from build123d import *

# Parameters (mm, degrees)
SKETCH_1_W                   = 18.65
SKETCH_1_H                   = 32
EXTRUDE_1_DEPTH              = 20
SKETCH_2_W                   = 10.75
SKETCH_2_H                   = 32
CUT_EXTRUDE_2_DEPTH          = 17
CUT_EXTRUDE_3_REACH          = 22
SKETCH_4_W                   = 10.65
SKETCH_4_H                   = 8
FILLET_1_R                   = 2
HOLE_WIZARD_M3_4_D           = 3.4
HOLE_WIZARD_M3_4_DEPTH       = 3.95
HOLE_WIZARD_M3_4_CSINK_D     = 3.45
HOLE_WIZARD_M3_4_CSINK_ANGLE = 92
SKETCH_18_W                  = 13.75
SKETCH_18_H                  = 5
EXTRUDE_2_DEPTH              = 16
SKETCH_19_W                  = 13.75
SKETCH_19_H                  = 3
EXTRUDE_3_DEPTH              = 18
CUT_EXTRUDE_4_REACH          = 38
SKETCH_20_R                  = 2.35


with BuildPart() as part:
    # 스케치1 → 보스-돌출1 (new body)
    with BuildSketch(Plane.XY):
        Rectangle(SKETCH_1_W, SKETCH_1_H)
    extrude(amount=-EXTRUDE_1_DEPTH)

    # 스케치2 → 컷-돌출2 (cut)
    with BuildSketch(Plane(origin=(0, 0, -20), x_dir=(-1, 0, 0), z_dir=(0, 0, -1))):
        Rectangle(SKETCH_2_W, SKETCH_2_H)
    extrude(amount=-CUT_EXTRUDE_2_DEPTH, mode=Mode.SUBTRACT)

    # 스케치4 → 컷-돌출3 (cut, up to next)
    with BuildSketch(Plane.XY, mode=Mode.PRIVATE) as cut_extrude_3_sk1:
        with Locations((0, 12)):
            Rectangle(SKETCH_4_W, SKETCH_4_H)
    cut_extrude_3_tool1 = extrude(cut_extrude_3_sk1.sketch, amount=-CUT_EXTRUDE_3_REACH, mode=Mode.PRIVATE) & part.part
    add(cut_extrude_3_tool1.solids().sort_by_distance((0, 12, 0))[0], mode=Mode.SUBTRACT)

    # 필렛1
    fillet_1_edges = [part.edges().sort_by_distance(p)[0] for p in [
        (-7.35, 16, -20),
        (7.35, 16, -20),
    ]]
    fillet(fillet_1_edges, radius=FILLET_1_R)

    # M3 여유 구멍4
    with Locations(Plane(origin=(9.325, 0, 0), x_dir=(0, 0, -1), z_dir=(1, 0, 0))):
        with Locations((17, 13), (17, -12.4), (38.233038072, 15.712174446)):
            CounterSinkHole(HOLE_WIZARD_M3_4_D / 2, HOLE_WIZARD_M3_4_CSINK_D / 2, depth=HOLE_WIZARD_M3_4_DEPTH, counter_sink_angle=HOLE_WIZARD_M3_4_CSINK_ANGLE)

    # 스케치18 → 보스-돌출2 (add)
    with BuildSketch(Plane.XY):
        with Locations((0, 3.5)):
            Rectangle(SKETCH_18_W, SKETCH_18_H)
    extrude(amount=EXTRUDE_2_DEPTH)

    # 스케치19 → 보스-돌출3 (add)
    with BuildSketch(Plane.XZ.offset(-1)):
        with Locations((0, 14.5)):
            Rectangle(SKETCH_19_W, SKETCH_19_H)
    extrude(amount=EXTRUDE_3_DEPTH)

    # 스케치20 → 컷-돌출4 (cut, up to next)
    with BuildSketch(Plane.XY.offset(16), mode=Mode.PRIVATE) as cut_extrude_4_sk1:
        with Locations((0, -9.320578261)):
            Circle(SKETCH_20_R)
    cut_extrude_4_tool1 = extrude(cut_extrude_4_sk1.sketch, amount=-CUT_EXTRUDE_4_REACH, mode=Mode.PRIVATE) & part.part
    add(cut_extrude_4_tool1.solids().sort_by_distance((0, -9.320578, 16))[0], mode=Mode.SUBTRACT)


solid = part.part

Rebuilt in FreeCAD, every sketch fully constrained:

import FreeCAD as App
import Part
import Sketcher
from FreeCAD import Vector
Q = App.Units.Quantity


def edges_at(feature, points):
    """Names of the edges that pass closest to the given points."""
    edges = feature.Shape.Edges
    near = lambda p: min(range(len(edges)), key=lambda i: edges[i].distToShape(Part.Vertex(*p))[0])
    return sorted({f"Edge{near(p) + 1}" for p in points})

doc = App.newDocument("Part")
params = doc.addObject("Spreadsheet::Sheet", "Params")
for row, (alias, value) in enumerate([
    ("sketch1_height", "32 mm"),
    ("sketch1_width", "18.65 mm"),
    ("pad1_length", "20 mm"),
    ("sketch2_height", "32 mm"),
    ("sketch2_width", "10.75 mm"),
    ("pocket1_length", "17 mm"),
    ("sketch3_height", "8 mm"),
    ("sketch3_width", "10.65 mm"),
    ("fillet_radius", "2 mm"),
    ("sketch4_diameter", "3.4 mm"),
    ("hole_diameter", "3.4 mm"),
    ("hole_depth", "3.95 mm"),
    ("hole_csink_diameter", "3.45 mm"),
    ("sketch5_height", "5 mm"),
    ("sketch5_width", "13.75 mm"),
    ("pad2_length", "16 mm"),
    ("sketch6_height", "3 mm"),
    ("sketch6_width", "13.75 mm"),
    ("pad3_length", "18 mm"),
    ("sketch7_diameter", "4.7 mm"),
], start=1):
    params.set(f"A{row}", alias)
    params.set(f"B{row}", "=" + value)
    params.setAlias(f"B{row}", alias)

body = doc.addObject("PartDesign::Body", "Body")

sketch1 = body.newObject("Sketcher::SketchObject", "Sketch")
sketch1.AttachmentSupport = (doc.getObject("XY_Plane"), [""])
sketch1.MapMode = "FlatFace"
sketch1.addGeometry([
    Part.LineSegment(Vector(-9, 16, 0), Vector(-9, -16, 0)),
    Part.LineSegment(Vector(-9, -16, 0), Vector(9, -16, 0)),
    Part.LineSegment(Vector(9, -16, 0), Vector(9, 16, 0)),
    Part.LineSegment(Vector(9, 16, 0), Vector(-9, 16, 0)),
], False)
sketch1.addConstraint([
    Sketcher.Constraint("Coincident", 0, 2, 1, 1),
    Sketcher.Constraint("Coincident", 1, 2, 2, 1),
    Sketcher.Constraint("Coincident", 2, 2, 3, 1),
    Sketcher.Constraint("Coincident", 3, 2, 0, 1),
    Sketcher.Constraint("Vertical", 0),
    Sketcher.Constraint("Horizontal", 1),
    Sketcher.Constraint("Vertical", 2),
    Sketcher.Constraint("Horizontal", 3),
    Sketcher.Constraint("Symmetric", 0, 2, 2, 2, -1, 1),
    Sketcher.Constraint("DistanceY", 0, 2, 0, 1, Q("32 mm")),
    Sketcher.Constraint("DistanceX", 1, 1, 1, 2, Q("18.65 mm")),
])
sketch1.setExpression("Constraints[9]", "Params.sketch1_height")
sketch1.setExpression("Constraints[10]", "Params.sketch1_width")
pad1 = body.newObject("PartDesign::Pad", "Pad")
pad1.Profile = sketch1
pad1.setExpression("Length", "Params.pad1_length")
pad1.Reversed = True

sketch2 = body.newObject("Sketcher::SketchObject", "Sketch001")
sketch2.AttachmentSupport = (doc.getObject("XY_Plane"), [""])
sketch2.MapMode = "FlatFace"
sketch2.AttachmentOffset = App.Placement(Vector(0, 0, -20), App.Rotation())
sketch2.addGeometry([
    Part.LineSegment(Vector(5, 16, 0), Vector(5, -16, 0)),
    Part.LineSegment(Vector(5, -16, 0), Vector(-5, -16, 0)),
    Part.LineSegment(Vector(-5, -16, 0), Vector(-5, 16, 0)),
    Part.LineSegment(Vector(-5, 16, 0), Vector(5, 16, 0)),
], False)
sketch2.addConstraint([
    Sketcher.Constraint("Coincident", 0, 2, 1, 1),
    Sketcher.Constraint("Coincident", 1, 2, 2, 1),
    Sketcher.Constraint("Coincident", 2, 2, 3, 1),
    Sketcher.Constraint("Coincident", 3, 2, 0, 1),
    Sketcher.Constraint("Vertical", 0),
    Sketcher.Constraint("Horizontal", 1),
    Sketcher.Constraint("Vertical", 2),
    Sketcher.Constraint("Horizontal", 3),
    Sketcher.Constraint("Symmetric", 0, 2, 2, 2, -1, 1),
    Sketcher.Constraint("DistanceY", 0, 2, 0, 1, Q("32 mm")),
    Sketcher.Constraint("DistanceX", 1, 2, 1, 1, Q("10.75 mm")),
])
sketch2.setExpression("Constraints[9]", "Params.sketch2_height")
sketch2.setExpression("Constraints[10]", "Params.sketch2_width")
pocket1 = body.newObject("PartDesign::Pocket", "Pocket")
pocket1.Profile = sketch2
pocket1.setExpression("Length", "Params.pocket1_length")
pocket1.Reversed = True

sketch3 = body.newObject("Sketcher::SketchObject", "Sketch002")
sketch3.AttachmentSupport = (doc.getObject("XY_Plane"), [""])
sketch3.MapMode = "FlatFace"
sketch3.addGeometry([
    Part.LineSegment(Vector(-5, 16, 0), Vector(-5, 8, 0)),
    Part.LineSegment(Vector(-5, 8, 0), Vector(5, 8, 0)),
    Part.LineSegment(Vector(5, 8, 0), Vector(5, 16, 0)),
    Part.LineSegment(Vector(5, 16, 0), Vector(-5, 16, 0)),
], False)
sketch3.addConstraint([
    Sketcher.Constraint("Coincident", 0, 2, 1, 1),
    Sketcher.Constraint("Coincident", 1, 2, 2, 1),
    Sketcher.Constraint("Coincident", 2, 2, 3, 1),
    Sketcher.Constraint("Coincident", 3, 2, 0, 1),
    Sketcher.Constraint("Vertical", 0),
    Sketcher.Constraint("Horizontal", 1),
    Sketcher.Constraint("Vertical", 2),
    Sketcher.Constraint("Horizontal", 3),
    Sketcher.Constraint("DistanceY", 0, 2, 0, 1, Q("8 mm")),
    Sketcher.Constraint("DistanceY", -1, 1, 0, 2, Q("8 mm")),
    Sketcher.Constraint("DistanceX", 1, 1, 1, 2, Q("10.65 mm")),
    Sketcher.Constraint("DistanceX", 0, 2, -1, 1, Q("5.325 mm")),
])
sketch3.setExpression("Constraints[8]", "Params.sketch3_height")
sketch3.setExpression("Constraints[10]", "Params.sketch3_width")
pocket2 = body.newObject("PartDesign::Pocket", "Pocket001")
pocket2.Profile = sketch3
pocket2.Type = "UpToFirst"
doc.recompute()

fillet = body.newObject("PartDesign::Fillet", "Fillet")
fillet.Base = (pocket2, edges_at(pocket2, [(-7.35, 16, -20), (7.35, 16, -20)]))
fillet.setExpression("Radius", "Params.fillet_radius")

sketch4 = body.newObject("Sketcher::SketchObject", "Sketch003")
sketch4.AttachmentSupport = (doc.getObject("YZ_Plane"), [""])
sketch4.MapMode = "FlatFace"
sketch4.AttachmentOffset = App.Placement(Vector(0, 0, 9.325), App.Rotation())
sketch4.addGeometry([
    Part.Circle(Vector(13, -17, 0), Vector(0, 0, 1), 1.7),
    Part.Circle(Vector(-12.4, -17, 0), Vector(0, 0, 1), 1.7),
    Part.Circle(Vector(15.7, -38.2, 0), Vector(0, 0, 1), 1.7),
], False)
sketch4.addConstraint([
    Sketcher.Constraint("Equal", 0, 1),
    Sketcher.Constraint("Equal", 1, 2),
    Sketcher.Constraint("Horizontal", 0, 3, 1, 3),
    Sketcher.Constraint("Diameter", 0, Q("3.4 mm")),
    Sketcher.Constraint("DistanceX", -1, 1, 0, 3, Q("13 mm")),
    Sketcher.Constraint("DistanceY", 0, 3, -1, 1, Q("17 mm")),
    Sketcher.Constraint("DistanceX", 1, 3, -1, 1, Q("12.4 mm")),
    Sketcher.Constraint("DistanceY", 2, 3, -1, 1, Q("38.233038 mm")),
    Sketcher.Constraint("DistanceX", -1, 1, 2, 3, Q("15.712174 mm")),
])
sketch4.setExpression("Constraints[3]", "Params.sketch4_diameter")
doc.recompute()
hole = body.newObject("PartDesign::Hole", "Hole")
hole.Profile = sketch4
hole.ThreadType = "None"
hole.setExpression("Diameter", "Params.hole_diameter")
hole.DepthType = "Dimension"
hole.setExpression("Depth", "Params.hole_depth")
hole.DrillPoint = "Flat"
hole.HoleCutType = "Countersink"
hole.setExpression("HoleCutDiameter", "Params.hole_csink_diameter")
hole.HoleCutCountersinkAngle = 92

sketch5 = body.newObject("Sketcher::SketchObject", "Sketch004")
sketch5.AttachmentSupport = (doc.getObject("XY_Plane"), [""])
sketch5.MapMode = "FlatFace"
sketch5.addGeometry([
    Part.LineSegment(Vector(-7, 6, 0), Vector(-7, 1, 0)),
    Part.LineSegment(Vector(-7, 1, 0), Vector(7, 1, 0)),
    Part.LineSegment(Vector(7, 1, 0), Vector(7, 6, 0)),
    Part.LineSegment(Vector(7, 6, 0), Vector(-7, 6, 0)),
], False)
sketch5.addConstraint([
    Sketcher.Constraint("Coincident", 0, 2, 1, 1),
    Sketcher.Constraint("Coincident", 1, 2, 2, 1),
    Sketcher.Constraint("Coincident", 2, 2, 3, 1),
    Sketcher.Constraint("Coincident", 3, 2, 0, 1),
    Sketcher.Constraint("Vertical", 0),
    Sketcher.Constraint("Horizontal", 1),
    Sketcher.Constraint("Vertical", 2),
    Sketcher.Constraint("Horizontal", 3),
    Sketcher.Constraint("DistanceY", 0, 2, 0, 1, Q("5 mm")),
    Sketcher.Constraint("DistanceY", -1, 1, 0, 2, Q("1 mm")),
    Sketcher.Constraint("DistanceX", 1, 1, 1, 2, Q("13.75 mm")),
    Sketcher.Constraint("DistanceX", 0, 2, -1, 1, Q("6.875 mm")),
])
sketch5.setExpression("Constraints[8]", "Params.sketch5_height")
sketch5.setExpression("Constraints[10]", "Params.sketch5_width")
pad2 = body.newObject("PartDesign::Pad", "Pad001")
pad2.Profile = sketch5
pad2.setExpression("Length", "Params.pad2_length")

sketch6 = body.newObject("Sketcher::SketchObject", "Sketch005")
sketch6.AttachmentSupport = (doc.getObject("XZ_Plane"), [""])
sketch6.MapMode = "FlatFace"
sketch6.AttachmentOffset = App.Placement(Vector(0, 0, -1), App.Rotation())
sketch6.addGeometry([
    Part.LineSegment(Vector(-6.9, 16, 0), Vector(-6.9, 13, 0)),
    Part.LineSegment(Vector(-6.9, 13, 0), Vector(6.9, 13, 0)),
    Part.LineSegment(Vector(6.9, 13, 0), Vector(6.9, 16, 0)),
    Part.LineSegment(Vector(6.9, 16, 0), Vector(-6.9, 16, 0)),
], False)
sketch6.addConstraint([
    Sketcher.Constraint("Coincident", 0, 2, 1, 1),
    Sketcher.Constraint("Coincident", 1, 2, 2, 1),
    Sketcher.Constraint("Coincident", 2, 2, 3, 1),
    Sketcher.Constraint("Coincident", 3, 2, 0, 1),
    Sketcher.Constraint("Vertical", 0),
    Sketcher.Constraint("Horizontal", 1),
    Sketcher.Constraint("Vertical", 2),
    Sketcher.Constraint("Horizontal", 3),
    Sketcher.Constraint("DistanceY", 0, 2, 0, 1, Q("3 mm")),
    Sketcher.Constraint("DistanceY", -1, 1, 0, 2, Q("13 mm")),
    Sketcher.Constraint("DistanceX", 1, 1, 1, 2, Q("13.75 mm")),
    Sketcher.Constraint("DistanceX", 0, 2, -1, 1, Q("6.875 mm")),
])
sketch6.setExpression("Constraints[8]", "Params.sketch6_height")
sketch6.setExpression("Constraints[10]", "Params.sketch6_width")
pad3 = body.newObject("PartDesign::Pad", "Pad002")
pad3.Profile = sketch6
pad3.setExpression("Length", "Params.pad3_length")

sketch7 = body.newObject("Sketcher::SketchObject", "Sketch006")
sketch7.AttachmentSupport = (doc.getObject("XY_Plane"), [""])
sketch7.MapMode = "FlatFace"
sketch7.AttachmentOffset = App.Placement(Vector(0, 0, 16), App.Rotation())
sketch7.addGeometry(Part.Circle(Vector(0, -9.3, 0), Vector(0, 0, 1), 2.4), False)
sketch7.addConstraint([
    Sketcher.Constraint("PointOnObject", 0, 3, -2),
    Sketcher.Constraint("Diameter", 0, Q("4.7 mm")),
    Sketcher.Constraint("DistanceY", 0, 3, -1, 1, Q("9.320578 mm")),
])
sketch7.setExpression("Constraints[1]", "Params.sketch7_diameter")
pocket3 = body.newObject("PartDesign::Pocket", "Pocket002")
pocket3.Profile = sketch7
pocket3.Type = "UpToFirst"

doc.recompute()
